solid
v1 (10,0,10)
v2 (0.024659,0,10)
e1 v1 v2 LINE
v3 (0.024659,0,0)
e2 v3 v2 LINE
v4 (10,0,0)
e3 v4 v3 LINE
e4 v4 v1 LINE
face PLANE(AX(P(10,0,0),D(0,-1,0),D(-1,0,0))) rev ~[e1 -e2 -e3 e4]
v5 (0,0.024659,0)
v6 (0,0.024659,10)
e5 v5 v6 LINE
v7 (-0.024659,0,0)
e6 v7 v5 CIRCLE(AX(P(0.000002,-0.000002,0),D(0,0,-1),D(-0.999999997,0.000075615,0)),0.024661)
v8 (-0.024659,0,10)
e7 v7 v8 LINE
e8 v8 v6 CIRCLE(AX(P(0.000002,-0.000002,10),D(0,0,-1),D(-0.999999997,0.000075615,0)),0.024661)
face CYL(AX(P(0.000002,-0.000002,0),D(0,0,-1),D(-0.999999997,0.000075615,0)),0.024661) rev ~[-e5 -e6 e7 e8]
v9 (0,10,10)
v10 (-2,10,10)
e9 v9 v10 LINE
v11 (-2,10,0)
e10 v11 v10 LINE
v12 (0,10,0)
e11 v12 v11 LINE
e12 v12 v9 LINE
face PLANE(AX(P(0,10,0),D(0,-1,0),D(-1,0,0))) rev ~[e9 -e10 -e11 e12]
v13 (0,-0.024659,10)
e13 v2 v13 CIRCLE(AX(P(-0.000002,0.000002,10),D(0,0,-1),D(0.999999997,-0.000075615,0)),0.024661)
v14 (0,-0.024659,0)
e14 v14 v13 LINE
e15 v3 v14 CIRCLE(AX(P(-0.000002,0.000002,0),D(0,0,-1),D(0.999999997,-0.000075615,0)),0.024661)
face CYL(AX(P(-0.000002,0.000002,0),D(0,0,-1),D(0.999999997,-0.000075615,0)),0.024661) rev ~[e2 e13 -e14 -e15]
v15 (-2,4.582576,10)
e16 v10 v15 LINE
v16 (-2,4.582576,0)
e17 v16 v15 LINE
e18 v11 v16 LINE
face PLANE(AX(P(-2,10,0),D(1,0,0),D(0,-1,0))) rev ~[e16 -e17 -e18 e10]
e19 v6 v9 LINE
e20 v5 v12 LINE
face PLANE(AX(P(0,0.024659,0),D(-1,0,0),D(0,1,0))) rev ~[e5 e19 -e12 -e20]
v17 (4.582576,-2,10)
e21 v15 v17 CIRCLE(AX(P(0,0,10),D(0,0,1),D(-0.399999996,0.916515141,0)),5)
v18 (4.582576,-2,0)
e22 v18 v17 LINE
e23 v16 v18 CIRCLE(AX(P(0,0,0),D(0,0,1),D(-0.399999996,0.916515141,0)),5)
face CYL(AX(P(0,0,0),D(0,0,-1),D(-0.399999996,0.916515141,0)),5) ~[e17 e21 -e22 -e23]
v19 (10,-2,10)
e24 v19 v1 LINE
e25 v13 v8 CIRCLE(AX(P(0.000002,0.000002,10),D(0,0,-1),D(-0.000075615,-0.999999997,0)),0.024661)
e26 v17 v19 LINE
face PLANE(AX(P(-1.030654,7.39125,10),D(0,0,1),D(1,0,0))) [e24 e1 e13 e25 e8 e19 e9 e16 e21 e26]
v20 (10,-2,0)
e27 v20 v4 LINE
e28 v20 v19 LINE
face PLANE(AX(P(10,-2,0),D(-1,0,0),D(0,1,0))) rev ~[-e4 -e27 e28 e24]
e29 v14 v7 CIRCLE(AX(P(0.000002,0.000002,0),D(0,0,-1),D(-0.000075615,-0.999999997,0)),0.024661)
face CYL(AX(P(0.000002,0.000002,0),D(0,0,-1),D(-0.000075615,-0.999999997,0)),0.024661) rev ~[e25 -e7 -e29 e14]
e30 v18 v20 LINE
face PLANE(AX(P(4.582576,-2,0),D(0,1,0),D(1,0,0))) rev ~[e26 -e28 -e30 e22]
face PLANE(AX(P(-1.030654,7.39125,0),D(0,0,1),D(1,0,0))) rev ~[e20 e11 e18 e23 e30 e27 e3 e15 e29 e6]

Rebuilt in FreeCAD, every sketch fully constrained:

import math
import FreeCAD as App
import Part
import Sketcher

V = App.Vector
Q = App.Units.Quantity

doc = App.newDocument("Part")
body = doc.addObject("PartDesign::Body", "Body")

# Sketch on XY plane
sketch1 = body.newObject("Sketcher::SketchObject", "Sketch")
sketch1.AttachmentSupport = (doc.getObject("XY_Plane"), [""])
sketch1.MapMode = "FlatFace"
sketch1.addGeometry(Part.LineSegment(V(-2, 10, 0), V(-2, 4.583, 0)), False)
sketch1.addGeometry(Part.ArcOfCircle(Part.Circle(V(0, 0, 0), V(0, 0, 1), 5), math.radians(114), math.radians(336)), False)
sketch1.addGeometry(Part.LineSegment(V(4.583, -2, 0), V(10, -2, 0)), False)
sketch1.addGeometry(Part.LineSegment(V(10, -2, 0), V(10, 0, 0)), False)
sketch1.addGeometry(Part.LineSegment(V(10, 0, 0), V(0.025, 0, 0)), False)
sketch1.addGeometry(Part.ArcOfCircle(Part.Circle(V(0, 0, 0), V(0, 0, 1), 0.025), math.radians(-90), math.radians(0)), False)
sketch1.addGeometry(Part.ArcOfCircle(Part.Circle(V(0, 0, 0), V(0, 0, 1), 0.025), math.radians(-180), math.radians(-90)), False)
sketch1.addGeometry(Part.ArcOfCircle(Part.Circle(V(0, 0, 0), V(0, 0, 1), 0.025), math.radians(90), math.radians(180)), False)
sketch1.addGeometry(Part.LineSegment(V(0, 0.025, 0), V(0, 10, 0)), False)
sketch1.addGeometry(Part.LineSegment(V(0, 10, 0), V(-2, 10, 0)), False)
sketch1.addConstraint(Sketcher.Constraint("Coincident", 0, 2, 1, 1))
sketch1.addConstraint(Sketcher.Constraint("Coincident", 1, 2, 2, 1))
sketch1.addConstraint(Sketcher.Constraint("Coincident", 2, 2, 3, 1))
sketch1.addConstraint(Sketcher.Constraint("Coincident", 3, 2, 4, 1))
sketch1.addConstraint(Sketcher.Constraint("Coincident", 4, 2, 5, 2))
sketch1.addConstraint(Sketcher.Constraint("Coincident", 5, 1, 6, 2))
sketch1.addConstraint(Sketcher.Constraint("Coincident", 6, 1, 7, 2))
sketch1.addConstraint(Sketcher.Constraint("Coincident", 7, 1, 8, 1))
sketch1.addConstraint(Sketcher.Constraint("Coincident", 8, 2, 9, 1))
sketch1.addConstraint(Sketcher.Constraint("Coincident", 9, 2, 0, 1))
sketch1.addConstraint(Sketcher.Constraint("Vertical", 0))
sketch1.addConstraint(Sketcher.Constraint("Horizontal", 2))
sketch1.addConstraint(Sketcher.Constraint("Vertical", 3))
sketch1.addConstraint(Sketcher.Constraint("Horizontal", 4))
sketch1.addConstraint(Sketcher.Constraint("Vertical", 8))
sketch1.addConstraint(Sketcher.Constraint("Horizontal", 9))
sketch1.addConstraint(Sketcher.Constraint("Coincident", 1, 3, -1, 1))
sketch1.addConstraint(Sketcher.Constraint("Coincident", 5, 3, -1, 1))
sketch1.addConstraint(Sketcher.Constraint("Coincident", 6, 3, -1, 1))
sketch1.addConstraint(Sketcher.Constraint("Coincident", 7, 3, -1, 1))
sketch1.addConstraint(Sketcher.Constraint("PointOnObject", 3, 2, -1))
sketch1.addConstraint(Sketcher.Constraint("PointOnObject", 5, 1, -2))
sketch1.addConstraint(Sketcher.Constraint("PointOnObject", 6, 1, -1))
sketch1.addConstraint(Sketcher.Constraint("PointOnObject", 7, 1, -2))
sketch1.addConstraint(Sketcher.Constraint("Equal", 2, 0))
sketch1.addConstraint(Sketcher.Constraint("Equal", 9, 3))
sketch1.addConstraint(Sketcher.Constraint("Radius", 1, Q("5 mm")))
sketch1.addConstraint(Sketcher.Constraint("DistanceX", 9, 2, 9, 1, Q("2 mm")))
sketch1.addConstraint(Sketcher.Constraint("DistanceX", -1, 1, 2, 2, Q("10 mm")))
sketch1.addConstraint(Sketcher.Constraint("Radius", 5, Q("0.024661 mm")))
pad1 = body.newObject("PartDesign::Pad", "Pad")
pad1.Profile = sketch1
pad1.Length = 10

doc.recompute()
